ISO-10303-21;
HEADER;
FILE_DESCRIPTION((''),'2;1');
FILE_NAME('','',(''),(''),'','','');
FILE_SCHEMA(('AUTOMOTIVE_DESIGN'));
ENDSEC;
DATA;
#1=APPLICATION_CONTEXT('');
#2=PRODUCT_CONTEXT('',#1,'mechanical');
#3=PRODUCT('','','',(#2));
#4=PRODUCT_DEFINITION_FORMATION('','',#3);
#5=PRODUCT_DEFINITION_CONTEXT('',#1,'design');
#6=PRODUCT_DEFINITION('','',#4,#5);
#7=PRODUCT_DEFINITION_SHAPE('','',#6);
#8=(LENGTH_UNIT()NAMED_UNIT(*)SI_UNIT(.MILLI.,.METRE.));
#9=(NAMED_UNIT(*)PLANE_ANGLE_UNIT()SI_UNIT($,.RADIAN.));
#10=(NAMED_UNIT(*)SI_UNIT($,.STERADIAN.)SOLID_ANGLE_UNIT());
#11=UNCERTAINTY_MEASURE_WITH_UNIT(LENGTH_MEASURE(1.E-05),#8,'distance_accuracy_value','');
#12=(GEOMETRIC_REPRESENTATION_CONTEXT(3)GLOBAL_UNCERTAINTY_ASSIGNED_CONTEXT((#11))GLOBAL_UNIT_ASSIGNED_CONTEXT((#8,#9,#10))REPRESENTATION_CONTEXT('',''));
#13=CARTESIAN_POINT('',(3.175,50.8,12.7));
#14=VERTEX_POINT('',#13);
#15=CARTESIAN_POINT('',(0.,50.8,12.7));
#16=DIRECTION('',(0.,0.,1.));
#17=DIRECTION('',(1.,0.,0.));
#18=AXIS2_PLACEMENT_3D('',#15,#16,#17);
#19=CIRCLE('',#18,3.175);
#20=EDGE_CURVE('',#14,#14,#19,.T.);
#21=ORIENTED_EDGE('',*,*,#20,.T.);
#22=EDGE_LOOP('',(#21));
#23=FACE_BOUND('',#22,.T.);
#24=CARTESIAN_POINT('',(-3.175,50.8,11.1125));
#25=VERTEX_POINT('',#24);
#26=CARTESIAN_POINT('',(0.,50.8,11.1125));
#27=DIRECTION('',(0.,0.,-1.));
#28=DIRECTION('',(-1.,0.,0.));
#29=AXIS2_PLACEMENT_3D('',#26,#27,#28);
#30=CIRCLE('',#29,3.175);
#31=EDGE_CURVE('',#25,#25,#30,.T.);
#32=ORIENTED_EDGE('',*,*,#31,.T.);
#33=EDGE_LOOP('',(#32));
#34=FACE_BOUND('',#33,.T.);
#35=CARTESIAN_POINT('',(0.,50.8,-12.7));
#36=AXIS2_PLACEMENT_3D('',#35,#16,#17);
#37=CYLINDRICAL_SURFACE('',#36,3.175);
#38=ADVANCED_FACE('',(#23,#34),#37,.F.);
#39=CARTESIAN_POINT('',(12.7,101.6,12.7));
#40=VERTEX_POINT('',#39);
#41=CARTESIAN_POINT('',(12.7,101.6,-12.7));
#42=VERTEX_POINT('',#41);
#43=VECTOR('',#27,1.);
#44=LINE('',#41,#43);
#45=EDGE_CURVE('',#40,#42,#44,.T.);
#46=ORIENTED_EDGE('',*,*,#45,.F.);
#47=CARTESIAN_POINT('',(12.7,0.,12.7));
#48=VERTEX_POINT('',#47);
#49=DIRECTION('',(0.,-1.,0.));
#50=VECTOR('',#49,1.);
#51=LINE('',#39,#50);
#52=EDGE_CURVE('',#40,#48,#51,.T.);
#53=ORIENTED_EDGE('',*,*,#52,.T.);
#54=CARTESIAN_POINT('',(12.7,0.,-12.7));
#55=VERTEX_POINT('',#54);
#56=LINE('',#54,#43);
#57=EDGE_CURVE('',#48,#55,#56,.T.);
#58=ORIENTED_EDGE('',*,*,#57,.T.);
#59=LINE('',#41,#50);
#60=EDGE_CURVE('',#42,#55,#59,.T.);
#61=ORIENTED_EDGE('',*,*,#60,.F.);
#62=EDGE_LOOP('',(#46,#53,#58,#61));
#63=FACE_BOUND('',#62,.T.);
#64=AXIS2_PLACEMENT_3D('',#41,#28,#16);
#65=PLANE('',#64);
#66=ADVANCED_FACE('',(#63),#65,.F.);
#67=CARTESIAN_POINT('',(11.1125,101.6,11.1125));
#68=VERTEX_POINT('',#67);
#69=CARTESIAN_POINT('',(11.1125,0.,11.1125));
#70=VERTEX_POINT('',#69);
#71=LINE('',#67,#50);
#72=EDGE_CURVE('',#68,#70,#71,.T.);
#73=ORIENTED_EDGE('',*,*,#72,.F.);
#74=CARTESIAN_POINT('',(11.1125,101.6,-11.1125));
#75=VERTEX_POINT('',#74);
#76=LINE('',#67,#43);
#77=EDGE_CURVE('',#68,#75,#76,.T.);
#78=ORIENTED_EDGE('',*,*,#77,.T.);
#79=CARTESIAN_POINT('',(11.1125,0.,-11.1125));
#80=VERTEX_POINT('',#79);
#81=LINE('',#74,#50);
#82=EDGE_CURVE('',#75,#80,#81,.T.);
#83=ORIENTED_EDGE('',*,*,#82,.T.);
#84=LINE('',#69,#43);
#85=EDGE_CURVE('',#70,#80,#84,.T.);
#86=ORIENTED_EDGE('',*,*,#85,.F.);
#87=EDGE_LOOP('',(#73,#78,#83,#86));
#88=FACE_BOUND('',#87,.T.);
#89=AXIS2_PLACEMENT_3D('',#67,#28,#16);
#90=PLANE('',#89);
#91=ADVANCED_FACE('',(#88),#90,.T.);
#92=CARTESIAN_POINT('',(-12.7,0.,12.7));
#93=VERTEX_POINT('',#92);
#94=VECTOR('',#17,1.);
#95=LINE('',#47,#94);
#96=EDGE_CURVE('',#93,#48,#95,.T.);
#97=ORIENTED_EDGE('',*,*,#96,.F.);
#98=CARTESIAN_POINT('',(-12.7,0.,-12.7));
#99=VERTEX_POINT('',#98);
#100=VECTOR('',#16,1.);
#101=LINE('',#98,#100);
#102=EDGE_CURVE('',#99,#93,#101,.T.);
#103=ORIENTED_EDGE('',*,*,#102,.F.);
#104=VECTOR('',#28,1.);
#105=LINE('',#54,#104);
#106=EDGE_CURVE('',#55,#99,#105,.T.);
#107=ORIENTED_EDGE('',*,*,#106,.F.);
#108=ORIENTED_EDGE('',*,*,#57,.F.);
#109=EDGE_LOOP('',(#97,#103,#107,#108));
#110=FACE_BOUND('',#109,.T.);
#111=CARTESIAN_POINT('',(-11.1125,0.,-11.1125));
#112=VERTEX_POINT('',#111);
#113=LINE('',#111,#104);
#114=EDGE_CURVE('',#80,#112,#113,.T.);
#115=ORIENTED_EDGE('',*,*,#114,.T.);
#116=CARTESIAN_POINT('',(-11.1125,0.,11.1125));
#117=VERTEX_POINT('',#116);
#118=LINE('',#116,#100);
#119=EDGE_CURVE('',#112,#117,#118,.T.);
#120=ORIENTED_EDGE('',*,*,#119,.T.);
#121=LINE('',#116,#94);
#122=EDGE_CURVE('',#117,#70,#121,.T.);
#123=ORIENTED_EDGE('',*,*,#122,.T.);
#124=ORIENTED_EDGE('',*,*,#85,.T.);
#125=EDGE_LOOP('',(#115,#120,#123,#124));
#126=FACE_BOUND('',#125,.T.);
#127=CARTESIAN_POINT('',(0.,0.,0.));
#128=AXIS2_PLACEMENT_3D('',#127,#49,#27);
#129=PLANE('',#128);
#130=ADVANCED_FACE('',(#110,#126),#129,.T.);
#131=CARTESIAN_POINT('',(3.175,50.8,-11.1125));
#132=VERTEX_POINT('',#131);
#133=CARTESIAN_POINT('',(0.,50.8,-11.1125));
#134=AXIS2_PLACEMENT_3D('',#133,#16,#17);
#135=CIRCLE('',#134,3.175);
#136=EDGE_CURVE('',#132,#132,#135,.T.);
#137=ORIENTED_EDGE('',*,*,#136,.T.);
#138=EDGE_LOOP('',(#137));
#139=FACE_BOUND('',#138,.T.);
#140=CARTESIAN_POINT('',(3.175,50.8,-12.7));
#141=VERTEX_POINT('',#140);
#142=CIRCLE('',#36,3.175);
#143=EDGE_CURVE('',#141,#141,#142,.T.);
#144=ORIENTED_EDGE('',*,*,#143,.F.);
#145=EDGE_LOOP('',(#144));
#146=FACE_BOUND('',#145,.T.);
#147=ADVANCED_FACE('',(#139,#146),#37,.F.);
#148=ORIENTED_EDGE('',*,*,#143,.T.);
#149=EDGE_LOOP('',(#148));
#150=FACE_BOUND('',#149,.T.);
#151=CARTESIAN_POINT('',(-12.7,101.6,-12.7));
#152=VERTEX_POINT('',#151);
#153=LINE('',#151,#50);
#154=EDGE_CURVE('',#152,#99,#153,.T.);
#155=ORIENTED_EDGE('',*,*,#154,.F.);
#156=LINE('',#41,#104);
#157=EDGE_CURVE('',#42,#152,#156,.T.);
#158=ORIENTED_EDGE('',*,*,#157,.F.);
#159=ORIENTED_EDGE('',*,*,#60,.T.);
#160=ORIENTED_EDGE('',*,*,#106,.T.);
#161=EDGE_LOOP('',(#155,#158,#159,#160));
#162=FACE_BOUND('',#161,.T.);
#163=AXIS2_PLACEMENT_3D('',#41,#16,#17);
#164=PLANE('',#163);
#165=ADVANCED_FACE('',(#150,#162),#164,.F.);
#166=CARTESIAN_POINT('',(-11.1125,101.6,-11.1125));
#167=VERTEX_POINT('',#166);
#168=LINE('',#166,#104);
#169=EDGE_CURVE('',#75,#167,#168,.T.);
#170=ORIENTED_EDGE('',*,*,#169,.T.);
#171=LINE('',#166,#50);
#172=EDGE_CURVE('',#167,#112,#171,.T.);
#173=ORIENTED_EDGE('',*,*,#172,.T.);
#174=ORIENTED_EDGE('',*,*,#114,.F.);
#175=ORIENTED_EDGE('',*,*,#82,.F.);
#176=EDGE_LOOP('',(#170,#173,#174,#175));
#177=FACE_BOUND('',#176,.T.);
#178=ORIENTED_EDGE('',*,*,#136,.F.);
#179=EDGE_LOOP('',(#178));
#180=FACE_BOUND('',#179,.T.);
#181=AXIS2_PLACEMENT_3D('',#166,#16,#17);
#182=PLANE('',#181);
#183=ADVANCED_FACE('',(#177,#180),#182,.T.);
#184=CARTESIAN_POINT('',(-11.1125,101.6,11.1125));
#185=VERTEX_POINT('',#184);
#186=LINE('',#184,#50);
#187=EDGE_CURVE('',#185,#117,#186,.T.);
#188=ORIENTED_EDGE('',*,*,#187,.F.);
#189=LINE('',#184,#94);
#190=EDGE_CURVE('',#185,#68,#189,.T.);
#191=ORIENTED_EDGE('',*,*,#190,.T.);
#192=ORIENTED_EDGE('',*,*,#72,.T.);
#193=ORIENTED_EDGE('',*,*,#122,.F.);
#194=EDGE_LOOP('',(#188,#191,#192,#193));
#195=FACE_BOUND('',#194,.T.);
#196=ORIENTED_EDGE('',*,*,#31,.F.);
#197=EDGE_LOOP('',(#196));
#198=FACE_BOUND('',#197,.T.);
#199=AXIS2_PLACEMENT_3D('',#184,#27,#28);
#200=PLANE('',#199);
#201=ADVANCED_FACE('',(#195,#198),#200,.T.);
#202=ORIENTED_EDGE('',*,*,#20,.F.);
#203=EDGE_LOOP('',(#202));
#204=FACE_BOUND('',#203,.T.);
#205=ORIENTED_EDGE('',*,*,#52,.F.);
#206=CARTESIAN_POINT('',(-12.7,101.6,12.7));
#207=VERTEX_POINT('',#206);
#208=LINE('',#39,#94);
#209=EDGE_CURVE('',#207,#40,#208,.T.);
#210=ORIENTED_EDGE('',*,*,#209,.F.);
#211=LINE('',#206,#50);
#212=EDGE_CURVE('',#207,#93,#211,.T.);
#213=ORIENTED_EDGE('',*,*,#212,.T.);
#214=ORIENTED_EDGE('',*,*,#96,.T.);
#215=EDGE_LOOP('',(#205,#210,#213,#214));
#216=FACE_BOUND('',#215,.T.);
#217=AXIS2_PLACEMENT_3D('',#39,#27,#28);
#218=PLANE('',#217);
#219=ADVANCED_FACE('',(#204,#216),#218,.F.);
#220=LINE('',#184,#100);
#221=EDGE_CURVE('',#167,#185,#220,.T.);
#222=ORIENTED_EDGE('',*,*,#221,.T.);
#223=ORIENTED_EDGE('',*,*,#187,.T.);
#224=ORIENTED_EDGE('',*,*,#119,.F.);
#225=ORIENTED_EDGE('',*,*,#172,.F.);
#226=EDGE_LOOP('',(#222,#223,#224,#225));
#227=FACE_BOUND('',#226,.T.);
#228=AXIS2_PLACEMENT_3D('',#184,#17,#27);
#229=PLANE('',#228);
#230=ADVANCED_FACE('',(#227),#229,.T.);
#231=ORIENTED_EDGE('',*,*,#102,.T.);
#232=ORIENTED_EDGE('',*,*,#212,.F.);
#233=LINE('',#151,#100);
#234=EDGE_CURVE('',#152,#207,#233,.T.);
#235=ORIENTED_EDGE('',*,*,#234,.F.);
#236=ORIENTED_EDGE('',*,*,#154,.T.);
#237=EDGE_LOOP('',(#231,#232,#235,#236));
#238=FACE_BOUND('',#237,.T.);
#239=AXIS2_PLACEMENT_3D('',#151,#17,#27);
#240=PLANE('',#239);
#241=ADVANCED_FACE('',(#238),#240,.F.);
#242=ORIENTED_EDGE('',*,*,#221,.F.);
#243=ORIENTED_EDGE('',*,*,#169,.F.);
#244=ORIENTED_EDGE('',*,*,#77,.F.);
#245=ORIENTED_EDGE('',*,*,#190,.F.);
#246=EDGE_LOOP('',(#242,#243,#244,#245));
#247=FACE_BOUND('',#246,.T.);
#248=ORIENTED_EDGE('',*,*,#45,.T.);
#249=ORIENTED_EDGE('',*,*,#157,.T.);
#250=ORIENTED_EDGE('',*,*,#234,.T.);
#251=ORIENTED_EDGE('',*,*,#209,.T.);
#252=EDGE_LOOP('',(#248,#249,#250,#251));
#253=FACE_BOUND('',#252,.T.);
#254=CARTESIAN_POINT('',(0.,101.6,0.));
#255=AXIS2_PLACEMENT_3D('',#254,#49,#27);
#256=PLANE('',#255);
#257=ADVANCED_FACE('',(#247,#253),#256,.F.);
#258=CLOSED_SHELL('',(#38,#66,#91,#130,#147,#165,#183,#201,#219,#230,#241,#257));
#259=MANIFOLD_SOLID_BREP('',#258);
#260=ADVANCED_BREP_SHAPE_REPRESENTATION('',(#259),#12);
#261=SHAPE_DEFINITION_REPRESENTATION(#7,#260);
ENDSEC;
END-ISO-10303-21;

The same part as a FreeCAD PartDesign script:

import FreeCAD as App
import Part
import Sketcher
from FreeCAD import Vector
Q = App.Units.Quantity


def add_polygon(sketch, points):
    """Adds a closed chain of lines whose ends are joined by coincident constraints."""
    first, n = sketch.GeometryCount, len(points)
    for a, b in zip(points, points[1:] + points[:1]):
        sketch.addGeometry(Part.LineSegment(App.Vector(*a, 0), App.Vector(*b, 0)), False)
    for i in range(n):
        sketch.addConstraint(Sketcher.Constraint("Coincident", first + i, 2, first + (i + 1) % n, 1))

doc = App.newDocument("Part")
body = doc.addObject("PartDesign::Body", "Body")

# Sketch on XZ plane
sketch1 = body.newObject("Sketcher::SketchObject", "Sketch")
sketch1.AttachmentSupport = (doc.getObject("XZ_Plane"), [""])
sketch1.MapMode = "FlatFace"
add_polygon(sketch1, [(-12.7, -12.7), (-12.7, 12.7), (12.7, 12.7), (12.7, -12.7)])  # lines 0-3
add_polygon(sketch1, [(11.1125, 11.1125), (-11.1125, 11.1125), (-11.1125, -11.1125), (11.1125, -11.1125)])  # lines 4-7
sketch1.addConstraint([
    Sketcher.Constraint("Vertical", 0),
    Sketcher.Constraint("Horizontal", 1),
    Sketcher.Constraint("Vertical", 2),
    Sketcher.Constraint("Horizontal", 3),
    Sketcher.Constraint("Horizontal", 4),
    Sketcher.Constraint("Vertical", 5),
    Sketcher.Constraint("Horizontal", 6),
    Sketcher.Constraint("Vertical", 7),
    Sketcher.Constraint("Symmetric", 0, 2, 2, 2, -1, 1),
    Sketcher.Constraint("Symmetric", 4, 2, 6, 2, -1, 1),
    Sketcher.Constraint("Equal", 3, 0),
    Sketcher.Constraint("Equal", 6, 5),
    Sketcher.Constraint("DistanceX", 1, 1, 1, 2, Q("1 in")),
    Sketcher.Constraint("DistanceX", 4, 2, 4, 1, Q("0.875 in")),
])
pad1 = body.newObject("PartDesign::Pad", "Pad")
pad1.Profile = sketch1
pad1.Length = Q("4 in")
pad1.Reversed = True

# Sketch on XY plane
sketch2 = body.newObject("Sketcher::SketchObject", "Sketch001")
sketch2.AttachmentSupport = (doc.getObject("XY_Plane"), [""])
sketch2.MapMode = "FlatFace"
sketch2.AttachmentOffset = App.Placement(Vector(0, 0, 0.5 * 25.4), App.Rotation())
sketch2.addGeometry(Part.Circle(Vector(0, 50.8, 0), Vector(0, 0, 1), 3.175), False)
sketch2.addConstraint([
    Sketcher.Constraint("PointOnObject", 0, 3, -2),
    Sketcher.Constraint("Diameter", 0, Q("0.25 in")),
    Sketcher.Constraint("DistanceY", -1, 1, 0, 3, Q("2 in")),
])
pocket1 = body.newObject("PartDesign::Pocket", "Pocket")
pocket1.Profile = sketch2
pocket1.Type = "ThroughAll"

doc.recompute()
